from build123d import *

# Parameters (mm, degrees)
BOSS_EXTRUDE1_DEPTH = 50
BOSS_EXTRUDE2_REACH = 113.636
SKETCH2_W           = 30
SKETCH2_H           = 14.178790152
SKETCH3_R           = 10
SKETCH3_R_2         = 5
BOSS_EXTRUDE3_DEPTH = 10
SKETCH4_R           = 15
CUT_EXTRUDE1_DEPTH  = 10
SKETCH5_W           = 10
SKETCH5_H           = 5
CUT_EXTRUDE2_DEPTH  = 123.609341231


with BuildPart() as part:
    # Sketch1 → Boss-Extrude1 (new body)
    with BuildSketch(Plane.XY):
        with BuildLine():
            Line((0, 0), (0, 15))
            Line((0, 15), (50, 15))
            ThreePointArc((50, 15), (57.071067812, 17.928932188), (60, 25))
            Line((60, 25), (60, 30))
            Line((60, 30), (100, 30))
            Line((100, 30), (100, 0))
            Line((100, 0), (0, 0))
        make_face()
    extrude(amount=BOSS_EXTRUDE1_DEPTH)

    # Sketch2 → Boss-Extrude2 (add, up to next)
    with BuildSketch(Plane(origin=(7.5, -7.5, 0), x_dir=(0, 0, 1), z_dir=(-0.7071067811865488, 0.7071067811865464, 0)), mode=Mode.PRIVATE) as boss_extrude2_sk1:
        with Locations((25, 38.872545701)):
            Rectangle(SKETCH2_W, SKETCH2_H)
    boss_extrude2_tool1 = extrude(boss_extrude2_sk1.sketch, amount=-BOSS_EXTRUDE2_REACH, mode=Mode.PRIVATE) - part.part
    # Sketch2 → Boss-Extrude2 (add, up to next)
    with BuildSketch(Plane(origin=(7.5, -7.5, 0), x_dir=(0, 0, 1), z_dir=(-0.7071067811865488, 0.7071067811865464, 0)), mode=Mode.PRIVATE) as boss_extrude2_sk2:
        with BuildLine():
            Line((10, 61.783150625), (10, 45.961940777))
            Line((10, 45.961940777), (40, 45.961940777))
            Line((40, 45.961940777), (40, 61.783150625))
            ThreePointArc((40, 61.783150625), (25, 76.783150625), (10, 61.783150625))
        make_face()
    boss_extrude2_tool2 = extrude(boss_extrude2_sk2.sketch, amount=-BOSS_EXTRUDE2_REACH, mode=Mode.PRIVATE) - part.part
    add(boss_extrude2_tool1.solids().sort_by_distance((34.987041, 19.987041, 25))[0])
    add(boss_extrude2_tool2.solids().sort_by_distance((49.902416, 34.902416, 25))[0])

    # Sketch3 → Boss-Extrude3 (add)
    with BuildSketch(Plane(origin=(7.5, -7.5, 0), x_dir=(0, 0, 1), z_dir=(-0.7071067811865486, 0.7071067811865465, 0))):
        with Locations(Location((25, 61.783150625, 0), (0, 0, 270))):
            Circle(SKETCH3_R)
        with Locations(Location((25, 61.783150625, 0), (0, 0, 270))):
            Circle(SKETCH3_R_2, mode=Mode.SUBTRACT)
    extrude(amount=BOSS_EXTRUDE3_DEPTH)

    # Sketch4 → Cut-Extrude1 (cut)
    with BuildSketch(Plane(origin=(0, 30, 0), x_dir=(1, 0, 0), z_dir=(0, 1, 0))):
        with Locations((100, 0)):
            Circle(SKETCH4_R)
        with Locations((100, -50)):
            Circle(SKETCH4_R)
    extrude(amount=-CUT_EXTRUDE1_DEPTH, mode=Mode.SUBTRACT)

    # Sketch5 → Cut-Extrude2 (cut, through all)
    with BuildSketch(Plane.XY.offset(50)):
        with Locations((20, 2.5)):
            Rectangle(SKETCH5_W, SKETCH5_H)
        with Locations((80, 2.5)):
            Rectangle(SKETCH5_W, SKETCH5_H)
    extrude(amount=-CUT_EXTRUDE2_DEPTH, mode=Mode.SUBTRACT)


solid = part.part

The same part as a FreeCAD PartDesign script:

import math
import FreeCAD as App
import Part
import Sketcher
from FreeCAD import Vector


def add_polygon(sketch, points):
    """Adds a closed chain of lines whose ends are joined by coincident constraints."""
    first, n = sketch.GeometryCount, len(points)
    for a, b in zip(points, points[1:] + points[:1]):
        sketch.addGeometry(Part.LineSegment(App.Vector(*a, 0), App.Vector(*b, 0)), False)
    for i in range(n):
        sketch.addConstraint(Sketcher.Constraint("Coincident", first + i, 2, first + (i + 1) % n, 1))

doc = App.newDocument("Part")
body = doc.addObject("PartDesign::Body", "Body")

# Sketch on XY plane
sketch1 = body.newObject("Sketcher::SketchObject", "Sketch")
sketch1.AttachmentSupport = (doc.getObject("XY_Plane"), [""])
sketch1.MapMode = "FlatFace"
sketch1.addGeometry([
    Part.LineSegment(Vector(0, 15, 0), Vector(0, 0, 0)),  # 0
    Part.LineSegment(Vector(0, 0, 0), Vector(100, 0, 0)),  # 1
    Part.LineSegment(Vector(100, 0, 0), Vector(100, 30, 0)),  # 2
    Part.LineSegment(Vector(100, 30, 0), Vector(60, 30, 0)),  # 3
    Part.LineSegment(Vector(60, 30, 0), Vector(60, 25, 0)),  # 4
    Part.ArcOfCircle(Part.Circle(Vector(50, 25, 0), Vector(0, 0, 1), 10), math.radians(-90), math.radians(0)),  # 5
    Part.LineSegment(Vector(50, 15, 0), Vector(0, 15, 0)),  # 6
], False)
sketch1.addConstraint([
    Sketcher.Constraint("Coincident", 0, 2, 1, 1),
    Sketcher.Constraint("Coincident", 1, 2, 2, 1),
    Sketcher.Constraint("Coincident", 2, 2, 3, 1),
    Sketcher.Constraint("Coincident", 3, 2, 4, 1),
    Sketcher.Constraint("Tangent", 4, 2, 5, 2),
    Sketcher.Constraint("Tangent", 5, 1, 6, 1),
    Sketcher.Constraint("Coincident", 6, 2, 0, 1),
    Sketcher.Constraint("Vertical", 0),
    Sketcher.Constraint("Horizontal", 1),
    Sketcher.Constraint("Vertical", 2),
    Sketcher.Constraint("Horizontal", 3),
    Sketcher.Constraint("Vertical", 4),
    Sketcher.Constraint("Horizontal", 6),
    Sketcher.Constraint("Coincident", 0, 2, -1, 1),
    Sketcher.Constraint("Radius", 5, 10.0),
    Sketcher.Constraint("DistanceX", 1, 1, 1, 2, 100.0),
    Sketcher.Constraint("DistanceX", 3, 2, 3, 1, 40.0),
    Sketcher.Constraint("DistanceY", 0, 2, 0, 1, 15.0),
    Sketcher.Constraint("DistanceY", 2, 1, 2, 2, 30.0),
])
pad1 = body.newObject("PartDesign::Pad", "Pad")
pad1.Profile = sketch1
pad1.Length = 50

# Sketch on an angled plane
sketch2 = body.newObject("Sketcher::SketchObject", "Sketch001")
sketch2.Placement = App.Placement(Vector(7.5, -7.5, 0), App.Rotation(Vector(0, 0, 1), Vector(0.707106781, 0.707106781, 0), Vector(-0.707106781, 0.707106781, 0), "ZXY"))
add_polygon(sketch2, [(10, 46), (10, 32), (40, 32), (40, 46)])  # lines 0-3
sketch2.addConstraint([
    Sketcher.Constraint("Vertical", 0),
    Sketcher.Constraint("Horizontal", 1),
    Sketcher.Constraint("Vertical", 2),
    Sketcher.Constraint("Horizontal", 3),
    Sketcher.Constraint("DistanceX", 1, 1, 1, 2, 30.0),
    Sketcher.Constraint("DistanceX", -1, 1, 0, 2, 10.0),
    Sketcher.Constraint("DistanceY", 0, 2, 0, 1, 14.17879),
    Sketcher.Constraint("DistanceY", -1, 1, 0, 2, 31.783151),
])
pad2 = body.newObject("PartDesign::Pad", "Pad001")
pad2.Profile = sketch2
pad2.Length = 14.142136
pad2.Reversed = True

# Sketch on an angled plane
sketch3 = body.newObject("Sketcher::SketchObject", "Sketch002")
sketch3.Placement = App.Placement(Vector(7.5, -7.5, 0), App.Rotation(Vector(0, 0, 1), Vector(0.707106781, 0.707106781, 0), Vector(-0.707106781, 0.707106781, 0), "ZXY"))
sketch3.addGeometry([
    Part.LineSegment(Vector(10, 62, 0), Vector(10, 46, 0)),
    Part.LineSegment(Vector(10, 46, 0), Vector(40, 46, 0)),
    Part.LineSegment(Vector(40, 46, 0), Vector(40, 62, 0)),
    Part.ArcOfCircle(Part.Circle(Vector(25, 62, 0), Vector(0, 0, 1), 15), math.radians(0), math.radians(180)),
], False)
sketch3.addConstraint([
    Sketcher.Constraint("Coincident", 0, 2, 1, 1),
    Sketcher.Constraint("Coincident", 1, 2, 2, 1),
    Sketcher.Constraint("Tangent", 2, 2, 3, 1),
    Sketcher.Constraint("Tangent", 3, 2, 0, 1),
    Sketcher.Constraint("Vertical", 0),
    Sketcher.Constraint("Horizontal", 1),
    Sketcher.Constraint("Vertical", 2),
    Sketcher.Constraint("Radius", 3, 15.0),
    Sketcher.Constraint("DistanceX", -1, 1, 3, 3, 25.0),
    Sketcher.Constraint("DistanceY", 0, 2, 0, 1, 15.82121),
    Sketcher.Constraint("DistanceY", -1, 1, 3, 3, 61.783151),
])
pad3 = body.newObject("PartDesign::Pad", "Pad002")
pad3.Profile = sketch3
pad3.Type = "UpToFirst"
pad3.Reversed = True

# Sketch on an angled plane
sketch4 = body.newObject("Sketcher::SketchObject", "Sketch003")
sketch4.Placement = App.Placement(Vector(7.5, -7.5, 0), App.Rotation(Vector(0, 0, 1), Vector(0.707106781, 0.707106781, 0), Vector(-0.707106781, 0.707106781, 0), "ZXY"))
sketch4.addGeometry([
    Part.Circle(Vector(25, 62, 0), Vector(0, 0, 1), 10),
    Part.Circle(Vector(25, 62, 0), Vector(0, 0, 1), 5),
], False)
sketch4.addConstraint([
    Sketcher.Constraint("Coincident", 1, 3, 0, 3),
    Sketcher.Constraint("Diameter", 0, 20.0),
    Sketcher.Constraint("Diameter", 1, 10.0),
    Sketcher.Constraint("DistanceX", -1, 1, 0, 3, 25.0),
    Sketcher.Constraint("DistanceY", -1, 1, 0, 3, 61.783151),
])
pad4 = body.newObject("PartDesign::Pad", "Pad003")
pad4.Profile = sketch4
pad4.Length = 10

# Sketch on XZ plane
sketch5 = body.newObject("Sketcher::SketchObject", "Sketch004")
sketch5.AttachmentSupport = (doc.getObject("XZ_Plane"), [""])
sketch5.MapMode = "FlatFace"
sketch5.AttachmentOffset = App.Placement(Vector(0, 0, -30), App.Rotation())
sketch5.addGeometry([
    Part.Circle(Vector(100, 0, 0), Vector(0, 0, 1), 15),
    Part.Circle(Vector(100, 50, 0), Vector(0, 0, 1), 15),
], False)
sketch5.addConstraint([
    Sketcher.Constraint("Equal", 0, 1),
    Sketcher.Constraint("PointOnObject", 0, 3, -1),
    Sketcher.Constraint("Vertical", 0, 3, 1, 3),
    Sketcher.Constraint("Diameter", 0, 30.0),
    Sketcher.Constraint("DistanceX", -1, 1, 0, 3, 100.0),
    Sketcher.Constraint("DistanceY", -1, 1, 1, 3, 50.0),
])
pocket1 = body.newObject("PartDesign::Pocket", "Pocket")
pocket1.Profile = sketch5
pocket1.Length = 10
pocket1.Reversed = True

# Sketch on XY plane
sketch6 = body.newObject("Sketcher::SketchObject", "Sketch005")
sketch6.AttachmentSupport = (doc.getObject("XY_Plane"), [""])
sketch6.MapMode = "FlatFace"
sketch6.AttachmentOffset = App.Placement(Vector(0, 0, 50), App.Rotation())
add_polygon(sketch6, [(15, 5), (15, 0), (25, 0), (25, 5)])  # lines 0-3
add_polygon(sketch6, [(75, 5), (75, 0), (85, 0), (85, 5)])  # lines 4-7
sketch6.addConstraint([
    Sketcher.Constraint("Vertical", 0),
    Sketcher.Constraint("Horizontal", 1),
    Sketcher.Constraint("Vertical", 2),
    Sketcher.Constraint("Horizontal", 3),
    Sketcher.Constraint("Vertical", 4),
    Sketcher.Constraint("Horizontal", 5),
    Sketcher.Constraint("Vertical", 6),
    Sketcher.Constraint("Horizontal", 7),
    Sketcher.Constraint("PointOnObject", 0, 2, -1),
    Sketcher.Constraint("PointOnObject", 4, 2, -1),
    Sketcher.Constraint("Horizontal", 3, 2, 6, 2),
    Sketcher.Constraint("Equal", 3, 5),
    Sketcher.Constraint("DistanceX", 1, 1, 1, 2, 10.0),
    Sketcher.Constraint("DistanceY", 0, 2, 0, 1, 5.0),
    Sketcher.Constraint("DistanceX", -1, 1, 0, 2, 15.0),
    Sketcher.Constraint("DistanceX", -1, 1, 4, 2, 75.0),
])
pocket2 = body.newObject("PartDesign::Pocket", "Pocket001")
pocket2.Profile = sketch6
pocket2.Type = "ThroughAll"

doc.recompute()
